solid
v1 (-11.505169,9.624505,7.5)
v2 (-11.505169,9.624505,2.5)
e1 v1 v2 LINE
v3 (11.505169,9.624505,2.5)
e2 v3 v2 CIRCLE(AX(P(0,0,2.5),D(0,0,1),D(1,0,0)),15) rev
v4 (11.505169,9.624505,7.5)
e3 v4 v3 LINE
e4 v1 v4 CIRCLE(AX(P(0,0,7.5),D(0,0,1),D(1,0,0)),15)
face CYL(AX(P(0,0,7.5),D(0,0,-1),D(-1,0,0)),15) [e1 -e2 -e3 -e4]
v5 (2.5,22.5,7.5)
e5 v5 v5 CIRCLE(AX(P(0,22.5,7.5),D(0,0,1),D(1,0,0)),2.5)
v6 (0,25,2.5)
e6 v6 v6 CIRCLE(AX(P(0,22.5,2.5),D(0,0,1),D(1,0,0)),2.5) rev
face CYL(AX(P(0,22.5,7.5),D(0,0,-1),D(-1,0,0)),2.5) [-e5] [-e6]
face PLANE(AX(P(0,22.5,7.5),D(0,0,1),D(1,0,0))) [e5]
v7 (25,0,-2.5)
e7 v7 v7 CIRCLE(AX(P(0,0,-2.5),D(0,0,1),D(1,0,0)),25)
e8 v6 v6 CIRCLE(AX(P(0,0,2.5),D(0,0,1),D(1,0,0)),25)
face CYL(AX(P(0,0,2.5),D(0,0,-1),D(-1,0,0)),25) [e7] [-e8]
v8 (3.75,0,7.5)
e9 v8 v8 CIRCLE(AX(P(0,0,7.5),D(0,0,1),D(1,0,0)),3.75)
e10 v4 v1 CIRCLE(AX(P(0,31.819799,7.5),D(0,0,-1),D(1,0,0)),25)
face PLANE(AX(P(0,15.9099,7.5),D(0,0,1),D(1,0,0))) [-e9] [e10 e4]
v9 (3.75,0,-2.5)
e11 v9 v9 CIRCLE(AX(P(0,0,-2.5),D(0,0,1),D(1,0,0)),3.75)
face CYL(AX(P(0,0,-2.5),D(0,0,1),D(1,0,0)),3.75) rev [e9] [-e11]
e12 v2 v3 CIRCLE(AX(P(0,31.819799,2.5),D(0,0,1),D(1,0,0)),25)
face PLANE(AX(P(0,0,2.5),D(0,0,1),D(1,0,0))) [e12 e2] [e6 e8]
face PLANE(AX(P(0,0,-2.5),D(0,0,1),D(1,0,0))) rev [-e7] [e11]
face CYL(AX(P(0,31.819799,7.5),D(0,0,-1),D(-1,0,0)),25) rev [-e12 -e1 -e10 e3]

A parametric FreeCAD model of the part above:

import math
import FreeCAD as App
import Part
import Sketcher
Q = App.Units.Quantity

doc = App.newDocument("Part")
body = doc.addObject("PartDesign::Body", "Body")

sketch1 = body.newObject("Sketcher::SketchObject", "Sketch")
sketch1.AttachmentSupport = (doc.getObject("XY_Plane"), [""])
sketch1.MapMode = "FlatFace"
sketch1.addGeometry(Part.Circle(App.Vector(0, 0, 0), App.Vector(0, 0, 1), 25), False)
sketch1.addConstraint([
    Sketcher.Constraint("Coincident", 0, 3, -1, 1),
    Sketcher.Constraint("Diameter", 0, Q("50 mm")),
])
pad1 = body.newObject("PartDesign::Pad", "Pad")
pad1.Profile = sketch1
pad1.Length = 5
pad1.Midplane = True

sketch2 = body.newObject("Sketcher::SketchObject", "Sketch001")
sketch2.AttachmentSupport = (doc.getObject("XY_Plane"), [""])
sketch2.MapMode = "FlatFace"
sketch2.addGeometry([
    Part.Circle(App.Vector(0, 22.5, 0), App.Vector(0, 0, 1), 2.5),
    Part.ArcOfCircle(Part.Circle(App.Vector(0, 0, 0), App.Vector(0, 0, 1), 15), math.radians(140), math.radians(400)),
    Part.ArcOfCircle(Part.Circle(App.Vector(0, 31.8, 0), App.Vector(0, 0, 1), 25), math.radians(-117), math.radians(-63)),
], False)
sketch2.addConstraint([
    Sketcher.Constraint("Coincident", 1, 1, 2, 1),
    Sketcher.Constraint("Coincident", 2, 2, 1, 2),
    Sketcher.Constraint("Coincident", 1, 3, -1, 1),
    Sketcher.Constraint("PointOnObject", 0, 3, -2),
    Sketcher.Constraint("PointOnObject", 2, 3, -2),
    Sketcher.Constraint("Diameter", 0, Q("5 mm")),
    Sketcher.Constraint("Radius", 1, Q("15 mm")),
    Sketcher.Constraint("Radius", 2, Q("25 mm")),
    Sketcher.Constraint("DistanceY", -1, 1, 0, 3, Q("22.5 mm")),
    Sketcher.Constraint("DistanceY", -1, 1, 2, 3, Q("31.819799 mm")),
])
pad2 = body.newObject("PartDesign::Pad", "Pad001")
pad2.Profile = sketch2
pad2.Length = 7.5

sketch3 = body.newObject("Sketcher::SketchObject", "Sketch002")
sketch3.AttachmentSupport = (doc.getObject("XY_Plane"), [""])
sketch3.MapMode = "FlatFace"
sketch3.AttachmentOffset = App.Placement(App.Vector(0, 0, 7.5), App.Rotation())
sketch3.addGeometry(Part.Circle(App.Vector(0, 0, 0), App.Vector(0, 0, 1), 3.8), False)
sketch3.addConstraint([
    Sketcher.Constraint("Coincident", 0, 3, -1, 1),
    Sketcher.Constraint("Diameter", 0, Q("7.5 mm")),
])
pocket1 = body.newObject("PartDesign::Pocket", "Pocket")
pocket1.Profile = sketch3
pocket1.Type = "ThroughAll"

doc.recompute()
